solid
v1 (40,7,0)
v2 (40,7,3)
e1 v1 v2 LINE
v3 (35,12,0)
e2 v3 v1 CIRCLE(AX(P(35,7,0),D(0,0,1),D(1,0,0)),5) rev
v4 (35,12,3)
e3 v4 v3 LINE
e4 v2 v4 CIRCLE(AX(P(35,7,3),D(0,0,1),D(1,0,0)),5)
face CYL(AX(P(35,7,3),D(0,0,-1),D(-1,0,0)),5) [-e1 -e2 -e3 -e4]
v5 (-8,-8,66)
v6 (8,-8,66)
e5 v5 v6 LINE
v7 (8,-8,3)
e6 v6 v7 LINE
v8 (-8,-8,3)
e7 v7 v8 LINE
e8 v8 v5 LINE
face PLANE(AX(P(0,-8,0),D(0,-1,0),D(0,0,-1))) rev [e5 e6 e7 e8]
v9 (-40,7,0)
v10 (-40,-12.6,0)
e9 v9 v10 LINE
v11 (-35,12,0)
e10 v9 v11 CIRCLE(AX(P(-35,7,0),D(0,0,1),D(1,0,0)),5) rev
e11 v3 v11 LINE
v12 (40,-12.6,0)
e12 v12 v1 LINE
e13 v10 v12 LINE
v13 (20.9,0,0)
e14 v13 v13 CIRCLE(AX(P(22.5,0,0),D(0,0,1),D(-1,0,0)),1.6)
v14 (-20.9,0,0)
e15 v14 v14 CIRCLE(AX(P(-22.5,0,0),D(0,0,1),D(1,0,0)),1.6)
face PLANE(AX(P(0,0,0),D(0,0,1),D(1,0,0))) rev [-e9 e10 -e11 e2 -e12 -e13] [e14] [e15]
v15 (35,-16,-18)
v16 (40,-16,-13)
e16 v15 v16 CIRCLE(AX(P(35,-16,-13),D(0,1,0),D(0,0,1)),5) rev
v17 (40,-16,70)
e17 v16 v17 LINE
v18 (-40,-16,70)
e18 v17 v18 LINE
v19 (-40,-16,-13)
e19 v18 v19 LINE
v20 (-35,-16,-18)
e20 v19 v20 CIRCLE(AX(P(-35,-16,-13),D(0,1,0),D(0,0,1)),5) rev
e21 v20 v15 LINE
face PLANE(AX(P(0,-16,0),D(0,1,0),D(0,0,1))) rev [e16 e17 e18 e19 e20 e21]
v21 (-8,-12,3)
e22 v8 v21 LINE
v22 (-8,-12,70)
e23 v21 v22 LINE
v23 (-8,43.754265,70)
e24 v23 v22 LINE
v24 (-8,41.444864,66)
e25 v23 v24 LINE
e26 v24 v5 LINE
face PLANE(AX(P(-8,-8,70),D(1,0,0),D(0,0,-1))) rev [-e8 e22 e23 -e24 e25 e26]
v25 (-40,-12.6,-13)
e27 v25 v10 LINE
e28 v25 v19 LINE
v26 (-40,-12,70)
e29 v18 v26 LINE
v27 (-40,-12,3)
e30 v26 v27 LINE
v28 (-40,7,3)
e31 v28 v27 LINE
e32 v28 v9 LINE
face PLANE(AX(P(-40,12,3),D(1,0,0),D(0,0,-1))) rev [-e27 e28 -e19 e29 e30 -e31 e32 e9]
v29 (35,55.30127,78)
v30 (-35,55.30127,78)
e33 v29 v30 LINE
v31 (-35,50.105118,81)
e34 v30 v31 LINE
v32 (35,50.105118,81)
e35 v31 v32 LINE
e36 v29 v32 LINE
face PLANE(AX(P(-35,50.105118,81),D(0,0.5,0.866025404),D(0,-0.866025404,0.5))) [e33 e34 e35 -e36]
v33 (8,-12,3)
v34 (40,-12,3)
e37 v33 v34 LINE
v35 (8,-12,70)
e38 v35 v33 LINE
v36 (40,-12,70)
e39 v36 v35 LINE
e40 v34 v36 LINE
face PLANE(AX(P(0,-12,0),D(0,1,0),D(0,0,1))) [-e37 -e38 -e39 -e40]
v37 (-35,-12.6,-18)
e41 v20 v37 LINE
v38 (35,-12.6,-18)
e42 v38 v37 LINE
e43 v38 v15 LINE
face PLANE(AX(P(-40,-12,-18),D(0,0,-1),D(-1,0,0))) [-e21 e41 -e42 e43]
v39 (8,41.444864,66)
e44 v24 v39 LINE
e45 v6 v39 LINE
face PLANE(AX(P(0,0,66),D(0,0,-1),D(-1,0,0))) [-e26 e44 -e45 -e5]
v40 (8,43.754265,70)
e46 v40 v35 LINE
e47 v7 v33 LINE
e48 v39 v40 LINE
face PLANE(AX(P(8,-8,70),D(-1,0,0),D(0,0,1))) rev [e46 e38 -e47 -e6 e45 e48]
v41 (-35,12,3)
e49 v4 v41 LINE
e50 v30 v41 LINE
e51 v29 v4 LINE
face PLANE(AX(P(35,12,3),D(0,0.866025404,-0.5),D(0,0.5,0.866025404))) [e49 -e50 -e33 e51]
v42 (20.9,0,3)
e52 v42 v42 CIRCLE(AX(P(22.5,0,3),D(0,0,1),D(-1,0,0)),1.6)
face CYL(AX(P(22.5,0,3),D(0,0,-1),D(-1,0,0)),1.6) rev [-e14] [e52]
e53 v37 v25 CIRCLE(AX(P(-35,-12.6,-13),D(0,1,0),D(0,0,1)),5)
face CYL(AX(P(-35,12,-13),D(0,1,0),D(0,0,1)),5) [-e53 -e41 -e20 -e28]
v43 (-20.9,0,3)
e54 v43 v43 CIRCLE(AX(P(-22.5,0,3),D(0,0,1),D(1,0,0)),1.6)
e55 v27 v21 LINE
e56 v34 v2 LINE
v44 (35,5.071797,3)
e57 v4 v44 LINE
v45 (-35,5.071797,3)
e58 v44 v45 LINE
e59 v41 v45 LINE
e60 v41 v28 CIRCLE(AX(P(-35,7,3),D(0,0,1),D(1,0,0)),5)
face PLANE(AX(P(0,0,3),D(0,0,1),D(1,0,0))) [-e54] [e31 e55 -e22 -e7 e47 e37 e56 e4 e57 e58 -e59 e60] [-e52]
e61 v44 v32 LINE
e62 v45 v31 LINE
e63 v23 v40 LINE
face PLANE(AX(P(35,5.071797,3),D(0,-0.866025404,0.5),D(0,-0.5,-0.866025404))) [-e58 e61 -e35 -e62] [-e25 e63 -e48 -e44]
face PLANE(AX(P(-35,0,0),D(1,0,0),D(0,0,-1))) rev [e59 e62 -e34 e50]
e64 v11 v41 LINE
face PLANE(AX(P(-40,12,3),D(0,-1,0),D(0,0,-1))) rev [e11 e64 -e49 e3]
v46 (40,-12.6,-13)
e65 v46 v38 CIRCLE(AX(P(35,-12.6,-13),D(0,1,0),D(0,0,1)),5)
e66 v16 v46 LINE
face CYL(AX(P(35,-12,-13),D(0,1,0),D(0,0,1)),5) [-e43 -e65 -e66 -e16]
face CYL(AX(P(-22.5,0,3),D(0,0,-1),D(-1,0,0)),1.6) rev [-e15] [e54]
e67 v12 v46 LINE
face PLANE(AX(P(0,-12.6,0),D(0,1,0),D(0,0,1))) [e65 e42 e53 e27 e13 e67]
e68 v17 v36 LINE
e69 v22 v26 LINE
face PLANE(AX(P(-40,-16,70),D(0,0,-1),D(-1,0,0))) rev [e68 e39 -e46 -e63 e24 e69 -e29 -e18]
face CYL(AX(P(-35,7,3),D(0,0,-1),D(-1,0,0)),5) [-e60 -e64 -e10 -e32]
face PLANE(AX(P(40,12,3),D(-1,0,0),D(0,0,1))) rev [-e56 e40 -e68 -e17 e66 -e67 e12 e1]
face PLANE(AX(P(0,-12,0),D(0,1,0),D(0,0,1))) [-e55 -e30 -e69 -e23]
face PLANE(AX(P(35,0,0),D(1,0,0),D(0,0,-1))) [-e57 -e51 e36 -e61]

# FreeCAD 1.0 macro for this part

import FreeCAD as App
import Part
import Sketcher

V = App.Vector
Q = App.Units.Quantity


def edges_at(feature, points):
    """Names of the edges that pass closest to the given points."""
    edges = feature.Shape.Edges
    near = lambda p: min(range(len(edges)), key=lambda i: edges[i].distToShape(Part.Vertex(*p))[0])
    return sorted({f"Edge{near(p) + 1}" for p in points})

doc = App.newDocument("Part")
params = doc.addObject("Spreadsheet::Sheet", "Params")
for row, (alias, value) in enumerate([
    ("sketch1_diameter", "3.2 mm"),
    ("sketch1_width", "80 mm"),
    ("sketch1_height", "24 mm"),
    ("pad1_length", "3 mm"),
    ("sketch2_width", "80 mm"),
    ("sketch2_height", "70 mm"),
    ("pad2_length", "4 mm"),
    ("sketch3_width", "80 mm"),
    ("sketch3_height", "18 mm"),
    ("pad3_length", "4 mm"),
    ("sketch4_width", "80 mm"),
    ("sketch4_height", "18 mm"),
    ("pocket1_length", "0.6 mm"),
    ("fillet_radius", "5 mm"),
    ("fillet2_radius", "5 mm"),
    ("sketch5_width", "16 mm"),
    ("sketch5_height", "67 mm"),
    ("pad4_length", "4 mm"),
    ("sketch6_width", "16 mm"),
    ("sketch6_height", "40 mm"),
    ("pad5_length", "4 mm"),
    ("pad6_length", "35 mm"),
    ("pad6_length2", "35 mm"),
    ("sketch8_width", "16 mm"),
    ("sketch8_height", "15 mm"),
    ("pad7_length", "4 mm"),
    ("sketch9_length", "6 mm"),
    ("pad8_length", "70 mm"),
], start=1):
    params.set(f"A{row}", alias)
    params.set(f"B{row}", "=" + value)
    params.setAlias(f"B{row}", alias)

body = doc.addObject("PartDesign::Body", "Body")

sketch1 = body.newObject("Sketcher::SketchObject", "Sketch")
sketch1.AttachmentSupport = (doc.getObject("XY_Plane"), [""])
sketch1.MapMode = "FlatFace"
sketch1.addGeometry([
    Part.LineSegment(V(-40, 12, 0), V(-40, -12, 0)),
    Part.LineSegment(V(-40, -12, 0), V(40, -12, 0)),
    Part.LineSegment(V(40, -12, 0), V(40, 12, 0)),
    Part.LineSegment(V(40, 12, 0), V(-40, 12, 0)),
    Part.Circle(V(-22.5, 0, 0), V(0, 0, 1), 1.6),
    Part.Circle(V(22.5, 0, 0), V(0, 0, 1), 1.6),
], False)
sketch1.addConstraint([
    Sketcher.Constraint("Coincident", 0, 2, 1, 1),
    Sketcher.Constraint("Coincident", 1, 2, 2, 1),
    Sketcher.Constraint("Coincident", 2, 2, 3, 1),
    Sketcher.Constraint("Coincident", 3, 2, 0, 1),
    Sketcher.Constraint("Vertical", 0),
    Sketcher.Constraint("Horizontal", 1),
    Sketcher.Constraint("Vertical", 2),
    Sketcher.Constraint("Horizontal", 3),
    Sketcher.Constraint("Equal", 4, 5),
    Sketcher.Constraint("Symmetric", 4, 3, 5, 3, -1, 1),
    Sketcher.Constraint("Symmetric", 0, 2, 2, 2, -1, 1),
    Sketcher.Constraint("PointOnObject", 4, 3, -1),
    Sketcher.Constraint("Diameter", 4, 3.2),
    Sketcher.Constraint("DistanceX", 1, 1, 1, 2, 80.0),
    Sketcher.Constraint("DistanceY", 0, 2, 0, 1, 24.0),
    Sketcher.Constraint("DistanceX", 4, 3, 5, 3, 45.0),
])
sketch1.setExpression("Constraints[12]", "Params.sketch1_diameter")
sketch1.setExpression("Constraints[13]", "Params.sketch1_width")
sketch1.setExpression("Constraints[14]", "Params.sketch1_height")
pad1 = body.newObject("PartDesign::Pad", "Pad")
pad1.Profile = sketch1
pad1.setExpression("Length", "Params.pad1_length")

sketch2 = body.newObject("Sketcher::SketchObject", "Sketch001")
sketch2.AttachmentSupport = (doc.getObject("XZ_Plane"), [""])
sketch2.MapMode = "FlatFace"
sketch2.AttachmentOffset = App.Placement(V(0, 0, 12), App.Rotation())
sketch2.addGeometry([
    Part.LineSegment(V(-40, 70, 0), V(-40, 0, 0)),
    Part.LineSegment(V(-40, 0, 0), V(40, 0, 0)),
    Part.LineSegment(V(40, 0, 0), V(40, 70, 0)),
    Part.LineSegment(V(40, 70, 0), V(-40, 70, 0)),
], False)
sketch2.addConstraint([
    Sketcher.Constraint("Coincident", 0, 2, 1, 1),
    Sketcher.Constraint("Coincident", 1, 2, 2, 1),
    Sketcher.Constraint("Coincident", 2, 2, 3, 1),
    Sketcher.Constraint("Coincident", 3, 2, 0, 1),
    Sketcher.Constraint("Vertical", 0),
    Sketcher.Constraint("Horizontal", 1),
    Sketcher.Constraint("Vertical", 2),
    Sketcher.Constraint("Horizontal", 3),
    Sketcher.Constraint("Symmetric", 0, 2, 1, 2, -1, 1),
    Sketcher.Constraint("DistanceX", 1, 1, 1, 2, 80.0),
    Sketcher.Constraint("DistanceY", 0, 2, 0, 1, 70.0),
])
sketch2.setExpression("Constraints[9]", "Params.sketch2_width")
sketch2.setExpression("Constraints[10]", "Params.sketch2_height")
pad2 = body.newObject("PartDesign::Pad", "Pad001")
pad2.Profile = sketch2
pad2.setExpression("Length", "Params.pad2_length")

sketch3 = body.newObject("Sketcher::SketchObject", "Sketch002")
sketch3.AttachmentSupport = (doc.getObject("XZ_Plane"), [""])
sketch3.MapMode = "FlatFace"
sketch3.AttachmentOffset = App.Placement(V(0, 0, 16), App.Rotation())
sketch3.addGeometry([
    Part.LineSegment(V(-40, 0, 0), V(-40, -18, 0)),
    Part.LineSegment(V(-40, -18, 0), V(40, -18, 0)),
    Part.LineSegment(V(40, -18, 0), V(40, 0, 0)),
    Part.LineSegment(V(40, 0, 0), V(-40, 0, 0)),
], False)
sketch3.addConstraint([
    Sketcher.Constraint("Coincident", 0, 2, 1, 1),
    Sketcher.Constraint("Coincident", 1, 2, 2, 1),
    Sketcher.Constraint("Coincident", 2, 2, 3, 1),
    Sketcher.Constraint("Coincident", 3, 2, 0, 1),
    Sketcher.Constraint("Vertical", 0),
    Sketcher.Constraint("Horizontal", 1),
    Sketcher.Constraint("Vertical", 2),
    Sketcher.Constraint("Horizontal", 3),
    Sketcher.Constraint("Symmetric", 2, 2, 3, 2, -1, 1),
    Sketcher.Constraint("DistanceX", 1, 1, 1, 2, 80.0),
    Sketcher.Constraint("DistanceY", 0, 2, 0, 1, 18.0),
])
sketch3.setExpression("Constraints[9]", "Params.sketch3_width")
sketch3.setExpression("Constraints[10]", "Params.sketch3_height")
pad3 = body.newObject("PartDesign::Pad", "Pad002")
pad3.Profile = sketch3
pad3.setExpression("Length", "Params.pad3_length")
pad3.Reversed = True

sketch4 = body.newObject("Sketcher::SketchObject", "Sketch003")
sketch4.AttachmentSupport = (doc.getObject("XZ_Plane"), [""])
sketch4.MapMode = "FlatFace"
sketch4.AttachmentOffset = App.Placement(V(0, 0, 12), App.Rotation())
sketch4.addGeometry([
    Part.LineSegment(V(-40, -18, 0), V(-40, 0, 0)),
    Part.LineSegment(V(-40, 0, 0), V(40, 0, 0)),
    Part.LineSegment(V(40, 0, 0), V(40, -18, 0)),
    Part.LineSegment(V(40, -18, 0), V(-40, -18, 0)),
], False)
sketch4.addConstraint([
    Sketcher.Constraint("Coincident", 0, 2, 1, 1),
    Sketcher.Constraint("Coincident", 1, 2, 2, 1),
    Sketcher.Constraint("Coincident", 2, 2, 3, 1),
    Sketcher.Constraint("Coincident", 3, 2, 0, 1),
    Sketcher.Constraint("Vertical", 0),
    Sketcher.Constraint("Horizontal", 1),
    Sketcher.Constraint("Vertical", 2),
    Sketcher.Constraint("Horizontal", 3),
    Sketcher.Constraint("Symmetric", 0, 2, 1, 2, -1, 1),
    Sketcher.Constraint("DistanceX", 1, 1, 1, 2, 80.0),
    Sketcher.Constraint("DistanceY", 0, 1, 0, 2, 18.0),
])
sketch4.setExpression("Constraints[9]", "Params.sketch4_width")
sketch4.setExpression("Constraints[10]", "Params.sketch4_height")
pocket1 = body.newObject("PartDesign::Pocket", "Pocket")
pocket1.Profile = sketch4
pocket1.setExpression("Length", "Params.pocket1_length")
pocket1.Reversed = True
doc.recompute()

fillet = body.newObject("PartDesign::Fillet", "Fillet")
fillet.Base = (pocket1, edges_at(pocket1, [(-40, -14.3, -18), (40, -14.3, -18)]))
fillet.setExpression("Radius", "Params.fillet_radius")
doc.recompute()

fillet2 = body.newObject("PartDesign::Fillet", "Fillet001")
fillet2.Base = (fillet, edges_at(fillet, [(-40, 12, 1.5), (40, 12, 1.5)]))
fillet2.setExpression("Radius", "Params.fillet2_radius")

sketch5 = body.newObject("Sketcher::SketchObject", "Sketch004")
sketch5.AttachmentSupport = (doc.getObject("XZ_Plane"), [""])
sketch5.MapMode = "FlatFace"
sketch5.AttachmentOffset = App.Placement(V(0, 0, 12), App.Rotation())
sketch5.addGeometry([
    Part.LineSegment(V(-8, 3, 0), V(-8, 70, 0)),
    Part.LineSegment(V(-8, 70, 0), V(8, 70, 0)),
    Part.LineSegment(V(8, 70, 0), V(8, 3, 0)),
    Part.LineSegment(V(8, 3, 0), V(-8, 3, 0)),
], False)
sketch5.addConstraint([
    Sketcher.Constraint("Coincident", 0, 2, 1, 1),
    Sketcher.Constraint("Coincident", 1, 2, 2, 1),
    Sketcher.Constraint("Coincident", 2, 2, 3, 1),
    Sketcher.Constraint("Coincident", 3, 2, 0, 1),
    Sketcher.Constraint("Vertical", 0),
    Sketcher.Constraint("Horizontal", 1),
    Sketcher.Constraint("Vertical", 2),
    Sketcher.Constraint("Horizontal", 3),
    Sketcher.Constraint("DistanceX", 1, 1, 1, 2, 16.0),
    Sketcher.Constraint("DistanceY", 0, 1, 0, 2, 67.0),
    Sketcher.Constraint("DistanceX", 0, 2, -1, 1, 8.0),
    Sketcher.Constraint("DistanceY", -1, 1, 0, 2, 70.0),
])
sketch5.setExpression("Constraints[8]", "Params.sketch5_width")
sketch5.setExpression("Constraints[9]", "Params.sketch5_height")
pad4 = body.newObject("PartDesign::Pad", "Pad003")
pad4.Profile = sketch5
pad4.setExpression("Length", "Params.pad4_length")
pad4.Reversed = True

sketch6 = body.newObject("Sketcher::SketchObject", "Sketch005")
sketch6.AttachmentSupport = (doc.getObject("XY_Plane"), [""])
sketch6.MapMode = "FlatFace"
sketch6.AttachmentOffset = App.Placement(V(0, 0, 70), App.Rotation())
sketch6.addGeometry([
    Part.LineSegment(V(-8, 32, 0), V(-8, -8, 0)),
    Part.LineSegment(V(-8, -8, 0), V(8, -8, 0)),
    Part.LineSegment(V(8, -8, 0), V(8, 32, 0)),
    Part.LineSegment(V(8, 32, 0), V(-8, 32, 0)),
], False)
sketch6.addConstraint([
    Sketcher.Constraint("Coincident", 0, 2, 1, 1),
    Sketcher.Constraint("Coincident", 1, 2, 2, 1),
    Sketcher.Constraint("Coincident", 2, 2, 3, 1),
    Sketcher.Constraint("Coincident", 3, 2, 0, 1),
    Sketcher.Constraint("Vertical", 0),
    Sketcher.Constraint("Horizontal", 1),
    Sketcher.Constraint("Vertical", 2),
    Sketcher.Constraint("Horizontal", 3),
    Sketcher.Constraint("DistanceX", 1, 1, 1, 2, 16.0),
    Sketcher.Constraint("DistanceY", 0, 2, 0, 1, 40.0),
    Sketcher.Constraint("DistanceX", 0, 2, -1, 1, 8.0),
    Sketcher.Constraint("DistanceY", 0, 2, -1, 1, 8.0),
])
sketch6.setExpression("Constraints[8]", "Params.sketch6_width")
sketch6.setExpression("Constraints[9]", "Params.sketch6_height")
pad5 = body.newObject("PartDesign::Pad", "Pad004")
pad5.Profile = sketch6
pad5.setExpression("Length", "Params.pad5_length")
pad5.Reversed = True

sketch7 = body.newObject("Sketcher::SketchObject", "Sketch006")
sketch7.AttachmentSupport = (doc.getObject("YZ_Plane"), [""])
sketch7.MapMode = "FlatFace"
sketch7.addGeometry([
    Part.LineSegment(V(55, 78, 0), V(12, 3, 0)),
    Part.LineSegment(V(12, 3, 0), V(5, 3, 0)),
    Part.LineSegment(V(5, 3, 0), V(48, 78, 0)),
    Part.LineSegment(V(48, 78, 0), V(55, 78, 0)),
], False)
sketch7.addConstraint([
    Sketcher.Constraint("Coincident", 0, 2, 1, 1),
    Sketcher.Constraint("Coincident", 1, 2, 2, 1),
    Sketcher.Constraint("Coincident", 2, 2, 3, 1),
    Sketcher.Constraint("Coincident", 3, 2, 0, 1),
    Sketcher.Constraint("Horizontal", 1),
    Sketcher.Constraint("Horizontal", 3),
    Sketcher.Constraint("Parallel", 0, 2),
    Sketcher.Constraint("Angle", 0, Q("-120 deg")),
    Sketcher.Constraint("DistanceX", -1, 1, 0, 2, 12.0),
    Sketcher.Constraint("DistanceY", -1, 1, 0, 2, 3.0),
    Sketcher.Constraint("DistanceY", -1, 1, 2, 2, 78.0),
    Sketcher.Constraint("DistanceX", 1, 2, 1, 1, 6.928203),
])
pad6 = body.newObject("PartDesign::Pad", "Pad005")
pad6.Profile = sketch7
pad6.Type = "TwoLengths"
pad6.setExpression("Length", "Params.pad6_length")
pad6.setExpression("Length2", "Params.pad6_length2")
pad6.Reversed = True

sketch8 = body.newObject("Sketcher::SketchObject", "Sketch007")
sketch8.AttachmentSupport = (doc.getObject("XY_Plane"), [""])
sketch8.MapMode = "FlatFace"
sketch8.AttachmentOffset = App.Placement(V(0, 0, 66), App.Rotation())
sketch8.addGeometry([
    Part.LineSegment(V(8, 47, 0), V(8, 32, 0)),
    Part.LineSegment(V(8, 32, 0), V(-8, 32, 0)),
    Part.LineSegment(V(-8, 32, 0), V(-8, 47, 0)),
    Part.LineSegment(V(-8, 47, 0), V(8, 47, 0)),
], False)
sketch8.addConstraint([
    Sketcher.Constraint("Coincident", 0, 2, 1, 1),
    Sketcher.Constraint("Coincident", 1, 2, 2, 1),
    Sketcher.Constraint("Coincident", 2, 2, 3, 1),
    Sketcher.Constraint("Coincident", 3, 2, 0, 1),
    Sketcher.Constraint("Vertical", 0),
    Sketcher.Constraint("Horizontal", 1),
    Sketcher.Constraint("Vertical", 2),
    Sketcher.Constraint("Horizontal", 3),
    Sketcher.Constraint("DistanceX", 1, 2, 1, 1, 16.0),
    Sketcher.Constraint("DistanceY", 0, 2, 0, 1, 15.0),
    Sketcher.Constraint("DistanceX", -1, 1, 0, 2, 8.0),
    Sketcher.Constraint("DistanceY", -1, 1, 0, 2, 32.0),
])
sketch8.setExpression("Constraints[8]", "Params.sketch8_width")
sketch8.setExpression("Constraints[9]", "Params.sketch8_height")
pad7 = body.newObject("PartDesign::Pad", "Pad006")
pad7.Profile = sketch8
pad7.setExpression("Length", "Params.pad7_length")

sketch9 = body.newObject("Sketcher::SketchObject", "Sketch008")
sketch9.AttachmentSupport = (doc.getObject("YZ_Plane"), [""])
sketch9.MapMode = "FlatFace"
sketch9.AttachmentOffset = App.Placement(V(0, 0, 35), App.Rotation())
sketch9.addGeometry([
    Part.LineSegment(V(50.1, 81, 0), V(48.4, 78, 0)),
    Part.LineSegment(V(48.4, 78, 0), V(55.3, 78, 0)),
    Part.LineSegment(V(55.3, 78, 0), V(50.1, 81, 0)),
], False)
sketch9.addConstraint([
    Sketcher.Constraint("Coincident", 0, 2, 1, 1),
    Sketcher.Constraint("Coincident", 1, 2, 2, 1),
    Sketcher.Constraint("Coincident", 2, 2, 0, 1),
    Sketcher.Constraint("Horizontal", 1),
    Sketcher.Constraint("Perpendicular", 0, 2),
    Sketcher.Constraint("Angle", 0, Q("-120 deg")),
    Sketcher.Constraint("Distance", 2, 6.0),
    Sketcher.Constraint("DistanceY", -1, 1, 0, 2, 78.0),
    Sketcher.Constraint("DistanceX", -1, 1, 1, 2, 55.30127),
])
sketch9.setExpression("Constraints[6]", "Params.sketch9_length")
pad8 = body.newObject("PartDesign::Pad", "Pad007")
pad8.Profile = sketch9
pad8.setExpression("Length", "Params.pad8_length")
pad8.Reversed = True

doc.recompute()
